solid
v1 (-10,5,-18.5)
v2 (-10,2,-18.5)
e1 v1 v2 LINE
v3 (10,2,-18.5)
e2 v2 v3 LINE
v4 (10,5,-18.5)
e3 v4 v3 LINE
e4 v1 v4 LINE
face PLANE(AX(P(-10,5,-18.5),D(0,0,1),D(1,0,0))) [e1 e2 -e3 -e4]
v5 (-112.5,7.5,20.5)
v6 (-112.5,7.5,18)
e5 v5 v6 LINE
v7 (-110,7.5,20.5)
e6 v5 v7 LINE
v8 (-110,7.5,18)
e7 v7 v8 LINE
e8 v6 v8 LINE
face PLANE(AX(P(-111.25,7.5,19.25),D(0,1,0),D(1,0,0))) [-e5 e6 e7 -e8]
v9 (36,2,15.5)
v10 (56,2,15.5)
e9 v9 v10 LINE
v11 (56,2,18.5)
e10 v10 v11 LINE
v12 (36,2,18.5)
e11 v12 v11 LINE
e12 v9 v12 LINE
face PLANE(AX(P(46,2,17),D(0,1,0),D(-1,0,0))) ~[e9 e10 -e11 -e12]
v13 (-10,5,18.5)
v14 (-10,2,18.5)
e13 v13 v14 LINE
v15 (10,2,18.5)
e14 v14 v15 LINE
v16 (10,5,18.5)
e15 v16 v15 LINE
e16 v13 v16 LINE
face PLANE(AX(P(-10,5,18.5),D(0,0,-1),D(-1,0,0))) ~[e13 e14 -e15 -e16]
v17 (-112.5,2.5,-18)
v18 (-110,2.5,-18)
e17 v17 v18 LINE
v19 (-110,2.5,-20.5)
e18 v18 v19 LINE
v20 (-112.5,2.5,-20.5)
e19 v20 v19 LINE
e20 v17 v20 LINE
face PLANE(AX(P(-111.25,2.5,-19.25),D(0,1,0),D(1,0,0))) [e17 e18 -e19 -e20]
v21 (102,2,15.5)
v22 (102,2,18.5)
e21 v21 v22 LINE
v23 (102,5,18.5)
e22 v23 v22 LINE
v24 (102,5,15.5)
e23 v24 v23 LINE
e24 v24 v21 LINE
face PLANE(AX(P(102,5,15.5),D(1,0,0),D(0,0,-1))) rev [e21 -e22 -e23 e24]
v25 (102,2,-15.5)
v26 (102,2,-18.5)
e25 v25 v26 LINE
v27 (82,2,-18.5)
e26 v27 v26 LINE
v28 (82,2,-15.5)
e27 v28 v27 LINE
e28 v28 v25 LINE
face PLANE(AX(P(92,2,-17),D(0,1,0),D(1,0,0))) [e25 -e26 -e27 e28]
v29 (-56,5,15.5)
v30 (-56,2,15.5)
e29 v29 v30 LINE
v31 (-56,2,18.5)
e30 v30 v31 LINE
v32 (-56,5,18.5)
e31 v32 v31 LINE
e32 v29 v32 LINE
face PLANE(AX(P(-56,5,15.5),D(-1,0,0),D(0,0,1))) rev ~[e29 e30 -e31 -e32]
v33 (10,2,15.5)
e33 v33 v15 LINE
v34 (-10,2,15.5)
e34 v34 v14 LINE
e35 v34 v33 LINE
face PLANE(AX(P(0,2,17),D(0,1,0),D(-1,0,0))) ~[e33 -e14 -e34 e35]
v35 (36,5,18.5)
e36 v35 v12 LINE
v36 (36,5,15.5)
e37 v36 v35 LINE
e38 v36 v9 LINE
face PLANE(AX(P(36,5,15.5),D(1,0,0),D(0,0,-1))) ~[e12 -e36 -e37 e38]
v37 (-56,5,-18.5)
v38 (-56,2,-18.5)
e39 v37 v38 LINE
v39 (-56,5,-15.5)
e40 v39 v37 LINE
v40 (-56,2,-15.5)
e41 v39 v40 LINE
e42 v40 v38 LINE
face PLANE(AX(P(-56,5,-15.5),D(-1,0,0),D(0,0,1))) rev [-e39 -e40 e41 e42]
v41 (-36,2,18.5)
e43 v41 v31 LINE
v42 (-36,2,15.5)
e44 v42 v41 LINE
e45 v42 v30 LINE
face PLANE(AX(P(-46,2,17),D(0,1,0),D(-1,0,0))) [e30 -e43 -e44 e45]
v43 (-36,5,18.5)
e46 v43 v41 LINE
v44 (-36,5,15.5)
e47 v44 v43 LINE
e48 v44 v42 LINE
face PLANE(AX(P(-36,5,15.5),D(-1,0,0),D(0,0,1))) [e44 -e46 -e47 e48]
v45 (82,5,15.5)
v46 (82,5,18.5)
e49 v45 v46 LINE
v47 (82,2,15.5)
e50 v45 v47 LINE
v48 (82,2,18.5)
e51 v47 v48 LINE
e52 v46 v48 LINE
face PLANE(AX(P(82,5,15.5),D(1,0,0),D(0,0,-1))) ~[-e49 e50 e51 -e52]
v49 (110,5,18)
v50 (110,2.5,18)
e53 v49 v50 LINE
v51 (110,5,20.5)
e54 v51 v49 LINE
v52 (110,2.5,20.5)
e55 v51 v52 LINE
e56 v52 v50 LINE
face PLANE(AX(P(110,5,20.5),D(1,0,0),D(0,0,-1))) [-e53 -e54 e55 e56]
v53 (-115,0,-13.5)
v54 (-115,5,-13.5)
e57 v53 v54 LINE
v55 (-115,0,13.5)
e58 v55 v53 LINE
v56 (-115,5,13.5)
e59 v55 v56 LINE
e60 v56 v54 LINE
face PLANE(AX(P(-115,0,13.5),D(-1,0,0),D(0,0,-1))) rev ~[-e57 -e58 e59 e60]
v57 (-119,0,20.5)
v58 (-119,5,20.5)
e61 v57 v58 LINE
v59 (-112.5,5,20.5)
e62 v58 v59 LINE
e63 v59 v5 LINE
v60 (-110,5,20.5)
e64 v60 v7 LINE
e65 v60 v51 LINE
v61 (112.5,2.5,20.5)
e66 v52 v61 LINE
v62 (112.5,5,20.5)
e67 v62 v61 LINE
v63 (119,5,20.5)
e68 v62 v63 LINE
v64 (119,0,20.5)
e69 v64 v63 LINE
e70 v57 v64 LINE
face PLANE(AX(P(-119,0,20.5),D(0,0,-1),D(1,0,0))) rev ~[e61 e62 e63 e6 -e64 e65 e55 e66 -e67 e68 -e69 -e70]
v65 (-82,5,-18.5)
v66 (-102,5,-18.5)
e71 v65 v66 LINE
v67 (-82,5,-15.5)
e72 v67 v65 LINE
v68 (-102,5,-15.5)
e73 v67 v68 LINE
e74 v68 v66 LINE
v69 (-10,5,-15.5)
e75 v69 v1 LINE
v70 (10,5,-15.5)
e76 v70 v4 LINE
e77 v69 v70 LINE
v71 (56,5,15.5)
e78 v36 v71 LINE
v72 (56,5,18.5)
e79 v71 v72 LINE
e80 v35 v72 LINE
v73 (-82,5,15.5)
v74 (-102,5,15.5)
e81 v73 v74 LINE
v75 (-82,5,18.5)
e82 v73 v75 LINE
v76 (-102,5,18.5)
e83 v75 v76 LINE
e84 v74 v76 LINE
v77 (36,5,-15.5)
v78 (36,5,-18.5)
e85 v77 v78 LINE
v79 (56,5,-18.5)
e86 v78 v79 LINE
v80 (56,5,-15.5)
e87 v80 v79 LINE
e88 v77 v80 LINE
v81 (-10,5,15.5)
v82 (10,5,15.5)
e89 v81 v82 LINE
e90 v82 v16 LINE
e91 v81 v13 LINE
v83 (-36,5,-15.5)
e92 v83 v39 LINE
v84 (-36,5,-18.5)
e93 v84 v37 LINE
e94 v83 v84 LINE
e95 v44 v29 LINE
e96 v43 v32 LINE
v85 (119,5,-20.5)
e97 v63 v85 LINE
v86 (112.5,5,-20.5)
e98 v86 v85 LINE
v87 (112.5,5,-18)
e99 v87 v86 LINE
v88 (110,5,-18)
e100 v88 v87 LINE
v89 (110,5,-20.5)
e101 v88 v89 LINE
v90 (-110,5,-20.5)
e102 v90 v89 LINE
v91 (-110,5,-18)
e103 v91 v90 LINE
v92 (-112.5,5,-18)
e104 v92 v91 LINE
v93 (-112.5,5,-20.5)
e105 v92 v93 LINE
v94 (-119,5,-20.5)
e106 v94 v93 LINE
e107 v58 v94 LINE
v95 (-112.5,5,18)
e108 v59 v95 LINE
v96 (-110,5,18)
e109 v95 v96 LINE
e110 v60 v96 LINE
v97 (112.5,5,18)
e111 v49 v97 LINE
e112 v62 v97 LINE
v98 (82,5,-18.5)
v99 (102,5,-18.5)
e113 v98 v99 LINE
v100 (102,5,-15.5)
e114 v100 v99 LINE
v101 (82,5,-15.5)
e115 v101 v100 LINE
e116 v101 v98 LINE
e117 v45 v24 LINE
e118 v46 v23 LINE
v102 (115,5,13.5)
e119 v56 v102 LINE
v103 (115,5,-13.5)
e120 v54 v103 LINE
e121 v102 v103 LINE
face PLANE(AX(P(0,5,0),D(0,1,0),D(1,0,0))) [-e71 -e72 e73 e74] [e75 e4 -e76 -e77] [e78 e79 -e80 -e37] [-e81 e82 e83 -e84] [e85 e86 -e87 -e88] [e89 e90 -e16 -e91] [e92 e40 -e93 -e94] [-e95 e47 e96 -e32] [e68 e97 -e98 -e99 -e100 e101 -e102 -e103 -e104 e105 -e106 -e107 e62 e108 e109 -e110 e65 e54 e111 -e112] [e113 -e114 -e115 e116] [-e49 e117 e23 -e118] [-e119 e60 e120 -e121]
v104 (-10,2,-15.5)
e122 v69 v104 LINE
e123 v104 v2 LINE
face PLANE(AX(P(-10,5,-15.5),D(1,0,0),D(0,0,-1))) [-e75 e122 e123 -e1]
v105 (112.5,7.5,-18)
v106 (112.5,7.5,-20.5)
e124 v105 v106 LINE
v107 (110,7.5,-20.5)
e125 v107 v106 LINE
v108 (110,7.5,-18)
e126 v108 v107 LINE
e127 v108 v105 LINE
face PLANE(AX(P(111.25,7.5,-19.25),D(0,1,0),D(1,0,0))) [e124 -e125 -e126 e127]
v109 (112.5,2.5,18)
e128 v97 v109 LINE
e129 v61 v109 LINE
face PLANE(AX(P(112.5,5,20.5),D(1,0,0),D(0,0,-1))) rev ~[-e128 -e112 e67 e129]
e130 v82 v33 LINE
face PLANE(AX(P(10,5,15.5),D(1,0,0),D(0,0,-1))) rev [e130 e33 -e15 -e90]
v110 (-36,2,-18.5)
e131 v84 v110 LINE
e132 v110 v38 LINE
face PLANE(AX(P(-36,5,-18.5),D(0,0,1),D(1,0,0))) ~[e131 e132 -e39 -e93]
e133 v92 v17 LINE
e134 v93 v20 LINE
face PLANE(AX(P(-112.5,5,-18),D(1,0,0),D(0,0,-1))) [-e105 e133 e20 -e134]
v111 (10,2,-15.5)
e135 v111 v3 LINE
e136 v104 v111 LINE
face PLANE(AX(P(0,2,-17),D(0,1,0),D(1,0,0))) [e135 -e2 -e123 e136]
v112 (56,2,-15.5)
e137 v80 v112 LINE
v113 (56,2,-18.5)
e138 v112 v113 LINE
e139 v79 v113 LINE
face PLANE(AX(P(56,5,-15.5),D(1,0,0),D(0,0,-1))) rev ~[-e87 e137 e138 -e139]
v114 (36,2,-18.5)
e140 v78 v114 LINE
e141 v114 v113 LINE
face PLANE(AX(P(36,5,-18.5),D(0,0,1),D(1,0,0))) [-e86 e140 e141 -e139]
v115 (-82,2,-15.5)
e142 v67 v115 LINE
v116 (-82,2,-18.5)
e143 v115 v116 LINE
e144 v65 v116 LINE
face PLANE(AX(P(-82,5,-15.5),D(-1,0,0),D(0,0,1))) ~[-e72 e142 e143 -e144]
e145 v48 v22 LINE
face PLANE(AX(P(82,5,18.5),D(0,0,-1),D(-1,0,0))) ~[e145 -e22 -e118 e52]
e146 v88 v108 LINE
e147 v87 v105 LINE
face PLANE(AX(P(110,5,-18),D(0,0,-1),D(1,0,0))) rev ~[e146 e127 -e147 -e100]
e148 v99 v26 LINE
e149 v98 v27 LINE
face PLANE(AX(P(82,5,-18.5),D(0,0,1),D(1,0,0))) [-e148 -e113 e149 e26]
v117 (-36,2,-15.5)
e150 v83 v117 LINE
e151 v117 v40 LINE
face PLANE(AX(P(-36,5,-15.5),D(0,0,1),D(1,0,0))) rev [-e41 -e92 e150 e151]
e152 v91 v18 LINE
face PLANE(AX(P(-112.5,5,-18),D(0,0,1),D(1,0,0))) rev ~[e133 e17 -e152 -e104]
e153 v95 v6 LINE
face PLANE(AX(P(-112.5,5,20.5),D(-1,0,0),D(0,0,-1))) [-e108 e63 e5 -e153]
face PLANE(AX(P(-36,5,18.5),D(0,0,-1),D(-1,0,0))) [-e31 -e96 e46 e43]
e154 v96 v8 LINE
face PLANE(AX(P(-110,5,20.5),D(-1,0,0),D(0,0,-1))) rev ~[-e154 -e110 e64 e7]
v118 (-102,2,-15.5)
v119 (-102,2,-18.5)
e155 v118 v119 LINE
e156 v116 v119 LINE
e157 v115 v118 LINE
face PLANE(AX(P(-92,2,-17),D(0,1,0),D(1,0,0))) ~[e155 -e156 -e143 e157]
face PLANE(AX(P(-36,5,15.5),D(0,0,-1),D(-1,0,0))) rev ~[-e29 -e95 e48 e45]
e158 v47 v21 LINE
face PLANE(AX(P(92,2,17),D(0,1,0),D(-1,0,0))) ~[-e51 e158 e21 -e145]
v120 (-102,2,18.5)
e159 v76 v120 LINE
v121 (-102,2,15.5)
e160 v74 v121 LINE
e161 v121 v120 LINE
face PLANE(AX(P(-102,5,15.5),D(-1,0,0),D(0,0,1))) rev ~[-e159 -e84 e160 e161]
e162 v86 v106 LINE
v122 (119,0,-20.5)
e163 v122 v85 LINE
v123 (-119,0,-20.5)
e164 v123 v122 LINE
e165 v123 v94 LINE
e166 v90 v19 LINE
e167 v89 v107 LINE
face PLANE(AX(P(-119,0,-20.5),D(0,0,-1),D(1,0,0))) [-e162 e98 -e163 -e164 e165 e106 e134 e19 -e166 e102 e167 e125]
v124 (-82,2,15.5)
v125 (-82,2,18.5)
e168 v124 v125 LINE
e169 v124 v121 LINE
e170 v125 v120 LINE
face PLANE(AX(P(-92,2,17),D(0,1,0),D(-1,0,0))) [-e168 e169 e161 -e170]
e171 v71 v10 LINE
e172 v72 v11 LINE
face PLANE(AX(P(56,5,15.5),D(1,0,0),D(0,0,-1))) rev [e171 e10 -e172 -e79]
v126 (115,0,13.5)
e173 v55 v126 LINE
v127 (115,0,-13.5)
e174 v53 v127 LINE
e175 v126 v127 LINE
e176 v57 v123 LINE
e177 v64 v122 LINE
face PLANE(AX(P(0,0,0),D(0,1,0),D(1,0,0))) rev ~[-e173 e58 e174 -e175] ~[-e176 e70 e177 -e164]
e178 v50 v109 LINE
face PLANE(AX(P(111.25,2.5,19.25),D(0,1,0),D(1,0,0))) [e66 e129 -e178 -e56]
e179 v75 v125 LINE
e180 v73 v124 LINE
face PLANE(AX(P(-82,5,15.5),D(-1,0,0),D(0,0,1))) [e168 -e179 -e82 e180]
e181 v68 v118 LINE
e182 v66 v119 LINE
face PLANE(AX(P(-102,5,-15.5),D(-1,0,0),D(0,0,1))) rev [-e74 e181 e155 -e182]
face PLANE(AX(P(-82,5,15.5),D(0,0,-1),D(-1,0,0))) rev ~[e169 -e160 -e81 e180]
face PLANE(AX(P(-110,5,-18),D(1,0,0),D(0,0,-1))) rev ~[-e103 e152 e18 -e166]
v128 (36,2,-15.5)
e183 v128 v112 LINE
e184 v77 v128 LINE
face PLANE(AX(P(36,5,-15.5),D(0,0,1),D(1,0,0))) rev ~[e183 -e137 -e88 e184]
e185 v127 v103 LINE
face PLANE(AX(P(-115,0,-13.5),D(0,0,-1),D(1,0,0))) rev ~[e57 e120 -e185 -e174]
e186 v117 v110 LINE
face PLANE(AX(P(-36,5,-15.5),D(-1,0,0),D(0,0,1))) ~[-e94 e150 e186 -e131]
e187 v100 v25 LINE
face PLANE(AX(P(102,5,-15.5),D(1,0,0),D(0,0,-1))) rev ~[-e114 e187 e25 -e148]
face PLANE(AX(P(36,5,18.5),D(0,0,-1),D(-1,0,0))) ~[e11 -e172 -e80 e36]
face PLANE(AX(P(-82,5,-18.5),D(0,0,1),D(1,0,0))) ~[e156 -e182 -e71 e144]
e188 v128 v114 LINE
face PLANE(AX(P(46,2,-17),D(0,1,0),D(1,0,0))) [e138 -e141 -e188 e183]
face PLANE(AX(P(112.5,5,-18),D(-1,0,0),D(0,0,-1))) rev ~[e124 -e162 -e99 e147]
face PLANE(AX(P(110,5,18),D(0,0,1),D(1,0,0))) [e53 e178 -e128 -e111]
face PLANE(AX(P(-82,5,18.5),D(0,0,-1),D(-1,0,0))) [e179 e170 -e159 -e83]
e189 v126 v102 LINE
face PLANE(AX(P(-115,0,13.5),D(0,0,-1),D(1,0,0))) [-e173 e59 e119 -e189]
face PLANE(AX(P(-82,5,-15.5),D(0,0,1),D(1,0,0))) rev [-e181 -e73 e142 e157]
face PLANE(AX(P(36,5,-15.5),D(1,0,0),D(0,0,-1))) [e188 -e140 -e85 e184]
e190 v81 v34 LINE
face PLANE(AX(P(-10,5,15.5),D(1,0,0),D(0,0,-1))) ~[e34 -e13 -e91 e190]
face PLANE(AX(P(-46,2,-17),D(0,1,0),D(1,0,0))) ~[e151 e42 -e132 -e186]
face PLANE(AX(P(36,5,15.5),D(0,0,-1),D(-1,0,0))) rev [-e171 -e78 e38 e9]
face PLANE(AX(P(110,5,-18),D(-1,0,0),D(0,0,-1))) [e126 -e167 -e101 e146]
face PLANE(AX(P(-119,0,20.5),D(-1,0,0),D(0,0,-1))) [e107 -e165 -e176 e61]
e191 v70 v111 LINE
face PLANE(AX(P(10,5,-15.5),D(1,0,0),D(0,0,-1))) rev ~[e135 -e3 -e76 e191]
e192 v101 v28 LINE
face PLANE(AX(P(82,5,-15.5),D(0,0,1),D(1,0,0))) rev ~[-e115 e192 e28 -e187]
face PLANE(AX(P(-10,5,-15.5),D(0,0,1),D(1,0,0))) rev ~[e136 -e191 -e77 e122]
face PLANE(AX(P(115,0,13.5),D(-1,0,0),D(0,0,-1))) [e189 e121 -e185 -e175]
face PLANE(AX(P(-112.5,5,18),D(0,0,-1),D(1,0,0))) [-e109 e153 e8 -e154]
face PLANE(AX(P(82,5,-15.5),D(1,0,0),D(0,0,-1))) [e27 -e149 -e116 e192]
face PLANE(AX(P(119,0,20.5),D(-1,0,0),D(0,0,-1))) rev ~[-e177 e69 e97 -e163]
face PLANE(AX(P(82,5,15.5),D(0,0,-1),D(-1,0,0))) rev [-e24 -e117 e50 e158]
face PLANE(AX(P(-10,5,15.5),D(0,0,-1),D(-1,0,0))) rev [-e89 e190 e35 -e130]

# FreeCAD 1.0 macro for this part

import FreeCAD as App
import Part
import Sketcher

V = App.Vector
Q = App.Units.Quantity


def add_polygon(sketch, points):
    """Adds a closed chain of lines whose ends are joined by coincident constraints."""
    first, n = sketch.GeometryCount, len(points)
    for a, b in zip(points, points[1:] + points[:1]):
        sketch.addGeometry(Part.LineSegment(App.Vector(*a, 0), App.Vector(*b, 0)), False)
    for i in range(n):
        sketch.addConstraint(Sketcher.Constraint("Coincident", first + i, 2, first + (i + 1) % n, 1))

doc = App.newDocument("Part")
body = doc.addObject("PartDesign::Body", "Body")

# Sketch on XZ plane
sketch1 = body.newObject("Sketcher::SketchObject", "Sketch")
sketch1.AttachmentSupport = (doc.getObject("XZ_Plane"), [""])
sketch1.MapMode = "FlatFace"
add_polygon(sketch1, [(-119, -20.5), (-119, 20.5), (119, 20.5), (119, -20.5)])  # lines 0-3
add_polygon(sketch1, [(115, 13.5), (-115, 13.5), (-115, -13.5), (115, -13.5)])  # lines 4-7
sketch1.addConstraint([
    Sketcher.Constraint("Vertical", 0),
    Sketcher.Constraint("Horizontal", 1),
    Sketcher.Constraint("Vertical", 2),
    Sketcher.Constraint("Horizontal", 3),
    Sketcher.Constraint("Horizontal", 4),
    Sketcher.Constraint("Vertical", 5),
    Sketcher.Constraint("Horizontal", 6),
    Sketcher.Constraint("Vertical", 7),
    Sketcher.Constraint("Symmetric", 0, 2, 2, 2, -1, 1),
    Sketcher.Constraint("Symmetric", 4, 2, 6, 2, -1, 1),
    Sketcher.Constraint("DistanceX", 1, 1, 1, 2, Q("238 mm")),
    Sketcher.Constraint("DistanceX", 4, 2, 4, 1, Q("230 mm")),
    Sketcher.Constraint("DistanceY", 0, 1, 0, 2, Q("41 mm")),
    Sketcher.Constraint("DistanceY", 5, 2, 5, 1, Q("27 mm")),
])
pad1 = body.newObject("PartDesign::Pad", "Pad")
pad1.Profile = sketch1
pad1.Length = 5
pad1.Reversed = True

# Sketch on XZ plane
sketch2 = body.newObject("Sketcher::SketchObject", "Sketch001")
sketch2.AttachmentSupport = (doc.getObject("XZ_Plane"), [""])
sketch2.MapMode = "FlatFace"
sketch2.AttachmentOffset = App.Placement(V(0, 0, -5), App.Rotation())
add_polygon(sketch2, [(-10, -18.5), (-10, -15.5), (10, -15.5), (10, -18.5)])  # lines 0-3
add_polygon(sketch2, [(36, -18.5), (36, -15.5), (56, -15.5), (56, -18.5)])  # lines 4-7
add_polygon(sketch2, [(82, -18.5), (82, -15.5), (102, -15.5), (102, -18.5)])  # lines 8-11
sketch2.addConstraint([
    Sketcher.Constraint("Vertical", 0),
    Sketcher.Constraint("Horizontal", 1),
    Sketcher.Constraint("Vertical", 2),
    Sketcher.Constraint("Horizontal", 3),
    Sketcher.Constraint("Vertical", 4),
    Sketcher.Constraint("Horizontal", 5),
    Sketcher.Constraint("Vertical", 6),
    Sketcher.Constraint("Horizontal", 7),
    Sketcher.Constraint("Vertical", 8),
    Sketcher.Constraint("Horizontal", 9),
    Sketcher.Constraint("Vertical", 10),
    Sketcher.Constraint("Horizontal", 11),
    Sketcher.Constraint("Horizontal", 1, 2, 4, 2),
    Sketcher.Constraint("Horizontal", 3, 2, 6, 2),
    Sketcher.Constraint("Horizontal", 5, 2, 8, 2),
    Sketcher.Constraint("Horizontal", 7, 2, 10, 2),
    Sketcher.Constraint("Equal", 3, 5),
    Sketcher.Constraint("Equal", 7, 9),
    Sketcher.Constraint("DistanceX", 1, 1, 1, 2, Q("20 mm")),
    Sketcher.Constraint("DistanceY", 0, 1, 0, 2, Q("3 mm")),
    Sketcher.Constraint("DistanceX", 0, 2, -1, 1, Q("10 mm")),
    Sketcher.Constraint("DistanceX", -1, 1, 4, 2, Q("36 mm")),
    Sketcher.Constraint("DistanceX", -1, 1, 8, 2, Q("82 mm")),
    Sketcher.Constraint("DistanceY", 0, 2, -1, 1, Q("15.5 mm")),
])
pocket1 = body.newObject("PartDesign::Pocket", "Pocket")
pocket1.Profile = sketch2
pocket1.Length = 3
pocket1.Reversed = True
doc.recompute()

mirrored = body.newObject("PartDesign::Mirrored", "Mirrored")
mirrored.Originals = [pocket1]
mirrored.MirrorPlane = (doc.getObject("XY_Plane"), [""])
body.Tip = mirrored
doc.recompute()

mirrored2 = body.newObject("PartDesign::Mirrored", "Mirrored001")
mirrored2.Originals = [pocket1]
mirrored2.MirrorPlane = (doc.getObject("YZ_Plane"), [""])
body.Tip = mirrored2

# Sketch on XZ plane
sketch3 = body.newObject("Sketcher::SketchObject", "Sketch002")
sketch3.AttachmentSupport = (doc.getObject("XZ_Plane"), [""])
sketch3.MapMode = "FlatFace"
sketch3.AttachmentOffset = App.Placement(V(0, 0, -5), App.Rotation())
add_polygon(sketch3, [(10, 18.5), (10, 15.5), (-10, 15.5), (-10, 18.5)])  # lines 0-3
add_polygon(sketch3, [(-36, 18.5), (-36, 15.5), (-56, 15.5), (-56, 18.5)])  # lines 4-7
add_polygon(sketch3, [(-82, 18.5), (-82, 15.5), (-102, 15.5), (-102, 18.5)])  # lines 8-11
sketch3.addConstraint([
    Sketcher.Constraint("Vertical", 0),
    Sketcher.Constraint("Horizontal", 1),
    Sketcher.Constraint("Vertical", 2),
    Sketcher.Constraint("Horizontal", 3),
    Sketcher.Constraint("Vertical", 4),
    Sketcher.Constraint("Horizontal", 5),
    Sketcher.Constraint("Vertical", 6),
    Sketcher.Constraint("Horizontal", 7),
    Sketcher.Constraint("Vertical", 8),
    Sketcher.Constraint("Horizontal", 9),
    Sketcher.Constraint("Vertical", 10),
    Sketcher.Constraint("Horizontal", 11),
    Sketcher.Constraint("Horizontal", 1, 2, 4, 2),
    Sketcher.Constraint("Horizontal", 3, 2, 6, 2),
    Sketcher.Constraint("Horizontal", 5, 2, 8, 2),
    Sketcher.Constraint("Horizontal", 7, 2, 10, 2),
    Sketcher.Constraint("Equal", 3, 5),
    Sketcher.Constraint("Equal", 7, 9),
    Sketcher.Constraint("DistanceX", 1, 2, 1, 1, Q("20 mm")),
    Sketcher.Constraint("DistanceY", 0, 2, 0, 1, Q("3 mm")),
    Sketcher.Constraint("DistanceX", -1, 1, 0, 2, Q("10 mm")),
    Sketcher.Constraint("DistanceX", 4, 2, -1, 1, Q("36 mm")),
    Sketcher.Constraint("DistanceX", 8, 2, -1, 1, Q("82 mm")),
    Sketcher.Constraint("DistanceY", -1, 1, 0, 2, Q("15.5 mm")),
])
pocket2 = body.newObject("PartDesign::Pocket", "Pocket001")
pocket2.Profile = sketch3
pocket2.Length = 3
pocket2.Reversed = True

# Sketch on XZ plane
sketch4 = body.newObject("Sketcher::SketchObject", "Sketch003")
sketch4.AttachmentSupport = (doc.getObject("XZ_Plane"), [""])
sketch4.MapMode = "FlatFace"
sketch4.AttachmentOffset = App.Placement(V(0, 0, -5), App.Rotation())
add_polygon(sketch4, [(-112.5, 18), (-112.5, 20.5), (-110, 20.5), (-110, 18)])  # lines 0-3
add_polygon(sketch4, [(110, -20.5), (110, -18), (112.5, -18), (112.5, -20.5)])  # lines 4-7
sketch4.addConstraint([
    Sketcher.Constraint("Vertical", 0),
    Sketcher.Constraint("Horizontal", 1),
    Sketcher.Constraint("Vertical", 2),
    Sketcher.Constraint("Horizontal", 3),
    Sketcher.Constraint("Vertical", 4),
    Sketcher.Constraint("Horizontal", 5),
    Sketcher.Constraint("Vertical", 6),
    Sketcher.Constraint("Horizontal", 7),
    Sketcher.Constraint("Symmetric", 2, 2, 4, 2, -1, 1),
    Sketcher.Constraint("Symmetric", 0, 2, 6, 2, -1, 1),
    Sketcher.Constraint("Equal", 7, 0),
    Sketcher.Constraint("DistanceX", 1, 1, 1, 2, Q("2.5 mm")),
    Sketcher.Constraint("DistanceX", 1, 2, -1, 1, Q("110 mm")),
    Sketcher.Constraint("DistanceY", -1, 1, 2, 2, Q("18 mm")),
])
pad2 = body.newObject("PartDesign::Pad", "Pad001")
pad2.Profile = sketch4
pad2.Length = 2.5
pad2.Reversed = True

# Sketch on XZ plane
sketch5 = body.newObject("Sketcher::SketchObject", "Sketch004")
sketch5.AttachmentSupport = (doc.getObject("XZ_Plane"), [""])
sketch5.MapMode = "FlatFace"
sketch5.AttachmentOffset = App.Placement(V(0, 0, -5), App.Rotation())
add_polygon(sketch5, [(-112.5, -20.5), (-112.5, -18), (-110, -18), (-110, -20.5)])  # lines 0-3
add_polygon(sketch5, [(110, 18), (110, 20.5), (112.5, 20.5), (112.5, 18)])  # lines 4-7
sketch5.addConstraint([
    Sketcher.Constraint("Vertical", 0),
    Sketcher.Constraint("Horizontal", 1),
    Sketcher.Constraint("Vertical", 2),
    Sketcher.Constraint("Horizontal", 3),
    Sketcher.Constraint("Vertical", 4),
    Sketcher.Constraint("Horizontal", 5),
    Sketcher.Constraint("Vertical", 6),
    Sketcher.Constraint("Horizontal", 7),
    Sketcher.Constraint("Symmetric", 2, 2, 4, 2, -1, 1),
    Sketcher.Constraint("Symmetric", 0, 2, 6, 2, -1, 1),
    Sketcher.Constraint("Equal", 7, 0),
    Sketcher.Constraint("DistanceX", 1, 1, 1, 2, Q("2.5 mm")),
    Sketcher.Constraint("DistanceY", 0, 2, -1, 1, Q("18 mm")),
    Sketcher.Constraint("DistanceX", 1, 2, -1, 1, Q("110 mm")),
])
pocket3 = body.newObject("PartDesign::Pocket", "Pocket002")
pocket3.Profile = sketch5
pocket3.Length = 2.5
pocket3.Reversed = True

doc.recompute()
